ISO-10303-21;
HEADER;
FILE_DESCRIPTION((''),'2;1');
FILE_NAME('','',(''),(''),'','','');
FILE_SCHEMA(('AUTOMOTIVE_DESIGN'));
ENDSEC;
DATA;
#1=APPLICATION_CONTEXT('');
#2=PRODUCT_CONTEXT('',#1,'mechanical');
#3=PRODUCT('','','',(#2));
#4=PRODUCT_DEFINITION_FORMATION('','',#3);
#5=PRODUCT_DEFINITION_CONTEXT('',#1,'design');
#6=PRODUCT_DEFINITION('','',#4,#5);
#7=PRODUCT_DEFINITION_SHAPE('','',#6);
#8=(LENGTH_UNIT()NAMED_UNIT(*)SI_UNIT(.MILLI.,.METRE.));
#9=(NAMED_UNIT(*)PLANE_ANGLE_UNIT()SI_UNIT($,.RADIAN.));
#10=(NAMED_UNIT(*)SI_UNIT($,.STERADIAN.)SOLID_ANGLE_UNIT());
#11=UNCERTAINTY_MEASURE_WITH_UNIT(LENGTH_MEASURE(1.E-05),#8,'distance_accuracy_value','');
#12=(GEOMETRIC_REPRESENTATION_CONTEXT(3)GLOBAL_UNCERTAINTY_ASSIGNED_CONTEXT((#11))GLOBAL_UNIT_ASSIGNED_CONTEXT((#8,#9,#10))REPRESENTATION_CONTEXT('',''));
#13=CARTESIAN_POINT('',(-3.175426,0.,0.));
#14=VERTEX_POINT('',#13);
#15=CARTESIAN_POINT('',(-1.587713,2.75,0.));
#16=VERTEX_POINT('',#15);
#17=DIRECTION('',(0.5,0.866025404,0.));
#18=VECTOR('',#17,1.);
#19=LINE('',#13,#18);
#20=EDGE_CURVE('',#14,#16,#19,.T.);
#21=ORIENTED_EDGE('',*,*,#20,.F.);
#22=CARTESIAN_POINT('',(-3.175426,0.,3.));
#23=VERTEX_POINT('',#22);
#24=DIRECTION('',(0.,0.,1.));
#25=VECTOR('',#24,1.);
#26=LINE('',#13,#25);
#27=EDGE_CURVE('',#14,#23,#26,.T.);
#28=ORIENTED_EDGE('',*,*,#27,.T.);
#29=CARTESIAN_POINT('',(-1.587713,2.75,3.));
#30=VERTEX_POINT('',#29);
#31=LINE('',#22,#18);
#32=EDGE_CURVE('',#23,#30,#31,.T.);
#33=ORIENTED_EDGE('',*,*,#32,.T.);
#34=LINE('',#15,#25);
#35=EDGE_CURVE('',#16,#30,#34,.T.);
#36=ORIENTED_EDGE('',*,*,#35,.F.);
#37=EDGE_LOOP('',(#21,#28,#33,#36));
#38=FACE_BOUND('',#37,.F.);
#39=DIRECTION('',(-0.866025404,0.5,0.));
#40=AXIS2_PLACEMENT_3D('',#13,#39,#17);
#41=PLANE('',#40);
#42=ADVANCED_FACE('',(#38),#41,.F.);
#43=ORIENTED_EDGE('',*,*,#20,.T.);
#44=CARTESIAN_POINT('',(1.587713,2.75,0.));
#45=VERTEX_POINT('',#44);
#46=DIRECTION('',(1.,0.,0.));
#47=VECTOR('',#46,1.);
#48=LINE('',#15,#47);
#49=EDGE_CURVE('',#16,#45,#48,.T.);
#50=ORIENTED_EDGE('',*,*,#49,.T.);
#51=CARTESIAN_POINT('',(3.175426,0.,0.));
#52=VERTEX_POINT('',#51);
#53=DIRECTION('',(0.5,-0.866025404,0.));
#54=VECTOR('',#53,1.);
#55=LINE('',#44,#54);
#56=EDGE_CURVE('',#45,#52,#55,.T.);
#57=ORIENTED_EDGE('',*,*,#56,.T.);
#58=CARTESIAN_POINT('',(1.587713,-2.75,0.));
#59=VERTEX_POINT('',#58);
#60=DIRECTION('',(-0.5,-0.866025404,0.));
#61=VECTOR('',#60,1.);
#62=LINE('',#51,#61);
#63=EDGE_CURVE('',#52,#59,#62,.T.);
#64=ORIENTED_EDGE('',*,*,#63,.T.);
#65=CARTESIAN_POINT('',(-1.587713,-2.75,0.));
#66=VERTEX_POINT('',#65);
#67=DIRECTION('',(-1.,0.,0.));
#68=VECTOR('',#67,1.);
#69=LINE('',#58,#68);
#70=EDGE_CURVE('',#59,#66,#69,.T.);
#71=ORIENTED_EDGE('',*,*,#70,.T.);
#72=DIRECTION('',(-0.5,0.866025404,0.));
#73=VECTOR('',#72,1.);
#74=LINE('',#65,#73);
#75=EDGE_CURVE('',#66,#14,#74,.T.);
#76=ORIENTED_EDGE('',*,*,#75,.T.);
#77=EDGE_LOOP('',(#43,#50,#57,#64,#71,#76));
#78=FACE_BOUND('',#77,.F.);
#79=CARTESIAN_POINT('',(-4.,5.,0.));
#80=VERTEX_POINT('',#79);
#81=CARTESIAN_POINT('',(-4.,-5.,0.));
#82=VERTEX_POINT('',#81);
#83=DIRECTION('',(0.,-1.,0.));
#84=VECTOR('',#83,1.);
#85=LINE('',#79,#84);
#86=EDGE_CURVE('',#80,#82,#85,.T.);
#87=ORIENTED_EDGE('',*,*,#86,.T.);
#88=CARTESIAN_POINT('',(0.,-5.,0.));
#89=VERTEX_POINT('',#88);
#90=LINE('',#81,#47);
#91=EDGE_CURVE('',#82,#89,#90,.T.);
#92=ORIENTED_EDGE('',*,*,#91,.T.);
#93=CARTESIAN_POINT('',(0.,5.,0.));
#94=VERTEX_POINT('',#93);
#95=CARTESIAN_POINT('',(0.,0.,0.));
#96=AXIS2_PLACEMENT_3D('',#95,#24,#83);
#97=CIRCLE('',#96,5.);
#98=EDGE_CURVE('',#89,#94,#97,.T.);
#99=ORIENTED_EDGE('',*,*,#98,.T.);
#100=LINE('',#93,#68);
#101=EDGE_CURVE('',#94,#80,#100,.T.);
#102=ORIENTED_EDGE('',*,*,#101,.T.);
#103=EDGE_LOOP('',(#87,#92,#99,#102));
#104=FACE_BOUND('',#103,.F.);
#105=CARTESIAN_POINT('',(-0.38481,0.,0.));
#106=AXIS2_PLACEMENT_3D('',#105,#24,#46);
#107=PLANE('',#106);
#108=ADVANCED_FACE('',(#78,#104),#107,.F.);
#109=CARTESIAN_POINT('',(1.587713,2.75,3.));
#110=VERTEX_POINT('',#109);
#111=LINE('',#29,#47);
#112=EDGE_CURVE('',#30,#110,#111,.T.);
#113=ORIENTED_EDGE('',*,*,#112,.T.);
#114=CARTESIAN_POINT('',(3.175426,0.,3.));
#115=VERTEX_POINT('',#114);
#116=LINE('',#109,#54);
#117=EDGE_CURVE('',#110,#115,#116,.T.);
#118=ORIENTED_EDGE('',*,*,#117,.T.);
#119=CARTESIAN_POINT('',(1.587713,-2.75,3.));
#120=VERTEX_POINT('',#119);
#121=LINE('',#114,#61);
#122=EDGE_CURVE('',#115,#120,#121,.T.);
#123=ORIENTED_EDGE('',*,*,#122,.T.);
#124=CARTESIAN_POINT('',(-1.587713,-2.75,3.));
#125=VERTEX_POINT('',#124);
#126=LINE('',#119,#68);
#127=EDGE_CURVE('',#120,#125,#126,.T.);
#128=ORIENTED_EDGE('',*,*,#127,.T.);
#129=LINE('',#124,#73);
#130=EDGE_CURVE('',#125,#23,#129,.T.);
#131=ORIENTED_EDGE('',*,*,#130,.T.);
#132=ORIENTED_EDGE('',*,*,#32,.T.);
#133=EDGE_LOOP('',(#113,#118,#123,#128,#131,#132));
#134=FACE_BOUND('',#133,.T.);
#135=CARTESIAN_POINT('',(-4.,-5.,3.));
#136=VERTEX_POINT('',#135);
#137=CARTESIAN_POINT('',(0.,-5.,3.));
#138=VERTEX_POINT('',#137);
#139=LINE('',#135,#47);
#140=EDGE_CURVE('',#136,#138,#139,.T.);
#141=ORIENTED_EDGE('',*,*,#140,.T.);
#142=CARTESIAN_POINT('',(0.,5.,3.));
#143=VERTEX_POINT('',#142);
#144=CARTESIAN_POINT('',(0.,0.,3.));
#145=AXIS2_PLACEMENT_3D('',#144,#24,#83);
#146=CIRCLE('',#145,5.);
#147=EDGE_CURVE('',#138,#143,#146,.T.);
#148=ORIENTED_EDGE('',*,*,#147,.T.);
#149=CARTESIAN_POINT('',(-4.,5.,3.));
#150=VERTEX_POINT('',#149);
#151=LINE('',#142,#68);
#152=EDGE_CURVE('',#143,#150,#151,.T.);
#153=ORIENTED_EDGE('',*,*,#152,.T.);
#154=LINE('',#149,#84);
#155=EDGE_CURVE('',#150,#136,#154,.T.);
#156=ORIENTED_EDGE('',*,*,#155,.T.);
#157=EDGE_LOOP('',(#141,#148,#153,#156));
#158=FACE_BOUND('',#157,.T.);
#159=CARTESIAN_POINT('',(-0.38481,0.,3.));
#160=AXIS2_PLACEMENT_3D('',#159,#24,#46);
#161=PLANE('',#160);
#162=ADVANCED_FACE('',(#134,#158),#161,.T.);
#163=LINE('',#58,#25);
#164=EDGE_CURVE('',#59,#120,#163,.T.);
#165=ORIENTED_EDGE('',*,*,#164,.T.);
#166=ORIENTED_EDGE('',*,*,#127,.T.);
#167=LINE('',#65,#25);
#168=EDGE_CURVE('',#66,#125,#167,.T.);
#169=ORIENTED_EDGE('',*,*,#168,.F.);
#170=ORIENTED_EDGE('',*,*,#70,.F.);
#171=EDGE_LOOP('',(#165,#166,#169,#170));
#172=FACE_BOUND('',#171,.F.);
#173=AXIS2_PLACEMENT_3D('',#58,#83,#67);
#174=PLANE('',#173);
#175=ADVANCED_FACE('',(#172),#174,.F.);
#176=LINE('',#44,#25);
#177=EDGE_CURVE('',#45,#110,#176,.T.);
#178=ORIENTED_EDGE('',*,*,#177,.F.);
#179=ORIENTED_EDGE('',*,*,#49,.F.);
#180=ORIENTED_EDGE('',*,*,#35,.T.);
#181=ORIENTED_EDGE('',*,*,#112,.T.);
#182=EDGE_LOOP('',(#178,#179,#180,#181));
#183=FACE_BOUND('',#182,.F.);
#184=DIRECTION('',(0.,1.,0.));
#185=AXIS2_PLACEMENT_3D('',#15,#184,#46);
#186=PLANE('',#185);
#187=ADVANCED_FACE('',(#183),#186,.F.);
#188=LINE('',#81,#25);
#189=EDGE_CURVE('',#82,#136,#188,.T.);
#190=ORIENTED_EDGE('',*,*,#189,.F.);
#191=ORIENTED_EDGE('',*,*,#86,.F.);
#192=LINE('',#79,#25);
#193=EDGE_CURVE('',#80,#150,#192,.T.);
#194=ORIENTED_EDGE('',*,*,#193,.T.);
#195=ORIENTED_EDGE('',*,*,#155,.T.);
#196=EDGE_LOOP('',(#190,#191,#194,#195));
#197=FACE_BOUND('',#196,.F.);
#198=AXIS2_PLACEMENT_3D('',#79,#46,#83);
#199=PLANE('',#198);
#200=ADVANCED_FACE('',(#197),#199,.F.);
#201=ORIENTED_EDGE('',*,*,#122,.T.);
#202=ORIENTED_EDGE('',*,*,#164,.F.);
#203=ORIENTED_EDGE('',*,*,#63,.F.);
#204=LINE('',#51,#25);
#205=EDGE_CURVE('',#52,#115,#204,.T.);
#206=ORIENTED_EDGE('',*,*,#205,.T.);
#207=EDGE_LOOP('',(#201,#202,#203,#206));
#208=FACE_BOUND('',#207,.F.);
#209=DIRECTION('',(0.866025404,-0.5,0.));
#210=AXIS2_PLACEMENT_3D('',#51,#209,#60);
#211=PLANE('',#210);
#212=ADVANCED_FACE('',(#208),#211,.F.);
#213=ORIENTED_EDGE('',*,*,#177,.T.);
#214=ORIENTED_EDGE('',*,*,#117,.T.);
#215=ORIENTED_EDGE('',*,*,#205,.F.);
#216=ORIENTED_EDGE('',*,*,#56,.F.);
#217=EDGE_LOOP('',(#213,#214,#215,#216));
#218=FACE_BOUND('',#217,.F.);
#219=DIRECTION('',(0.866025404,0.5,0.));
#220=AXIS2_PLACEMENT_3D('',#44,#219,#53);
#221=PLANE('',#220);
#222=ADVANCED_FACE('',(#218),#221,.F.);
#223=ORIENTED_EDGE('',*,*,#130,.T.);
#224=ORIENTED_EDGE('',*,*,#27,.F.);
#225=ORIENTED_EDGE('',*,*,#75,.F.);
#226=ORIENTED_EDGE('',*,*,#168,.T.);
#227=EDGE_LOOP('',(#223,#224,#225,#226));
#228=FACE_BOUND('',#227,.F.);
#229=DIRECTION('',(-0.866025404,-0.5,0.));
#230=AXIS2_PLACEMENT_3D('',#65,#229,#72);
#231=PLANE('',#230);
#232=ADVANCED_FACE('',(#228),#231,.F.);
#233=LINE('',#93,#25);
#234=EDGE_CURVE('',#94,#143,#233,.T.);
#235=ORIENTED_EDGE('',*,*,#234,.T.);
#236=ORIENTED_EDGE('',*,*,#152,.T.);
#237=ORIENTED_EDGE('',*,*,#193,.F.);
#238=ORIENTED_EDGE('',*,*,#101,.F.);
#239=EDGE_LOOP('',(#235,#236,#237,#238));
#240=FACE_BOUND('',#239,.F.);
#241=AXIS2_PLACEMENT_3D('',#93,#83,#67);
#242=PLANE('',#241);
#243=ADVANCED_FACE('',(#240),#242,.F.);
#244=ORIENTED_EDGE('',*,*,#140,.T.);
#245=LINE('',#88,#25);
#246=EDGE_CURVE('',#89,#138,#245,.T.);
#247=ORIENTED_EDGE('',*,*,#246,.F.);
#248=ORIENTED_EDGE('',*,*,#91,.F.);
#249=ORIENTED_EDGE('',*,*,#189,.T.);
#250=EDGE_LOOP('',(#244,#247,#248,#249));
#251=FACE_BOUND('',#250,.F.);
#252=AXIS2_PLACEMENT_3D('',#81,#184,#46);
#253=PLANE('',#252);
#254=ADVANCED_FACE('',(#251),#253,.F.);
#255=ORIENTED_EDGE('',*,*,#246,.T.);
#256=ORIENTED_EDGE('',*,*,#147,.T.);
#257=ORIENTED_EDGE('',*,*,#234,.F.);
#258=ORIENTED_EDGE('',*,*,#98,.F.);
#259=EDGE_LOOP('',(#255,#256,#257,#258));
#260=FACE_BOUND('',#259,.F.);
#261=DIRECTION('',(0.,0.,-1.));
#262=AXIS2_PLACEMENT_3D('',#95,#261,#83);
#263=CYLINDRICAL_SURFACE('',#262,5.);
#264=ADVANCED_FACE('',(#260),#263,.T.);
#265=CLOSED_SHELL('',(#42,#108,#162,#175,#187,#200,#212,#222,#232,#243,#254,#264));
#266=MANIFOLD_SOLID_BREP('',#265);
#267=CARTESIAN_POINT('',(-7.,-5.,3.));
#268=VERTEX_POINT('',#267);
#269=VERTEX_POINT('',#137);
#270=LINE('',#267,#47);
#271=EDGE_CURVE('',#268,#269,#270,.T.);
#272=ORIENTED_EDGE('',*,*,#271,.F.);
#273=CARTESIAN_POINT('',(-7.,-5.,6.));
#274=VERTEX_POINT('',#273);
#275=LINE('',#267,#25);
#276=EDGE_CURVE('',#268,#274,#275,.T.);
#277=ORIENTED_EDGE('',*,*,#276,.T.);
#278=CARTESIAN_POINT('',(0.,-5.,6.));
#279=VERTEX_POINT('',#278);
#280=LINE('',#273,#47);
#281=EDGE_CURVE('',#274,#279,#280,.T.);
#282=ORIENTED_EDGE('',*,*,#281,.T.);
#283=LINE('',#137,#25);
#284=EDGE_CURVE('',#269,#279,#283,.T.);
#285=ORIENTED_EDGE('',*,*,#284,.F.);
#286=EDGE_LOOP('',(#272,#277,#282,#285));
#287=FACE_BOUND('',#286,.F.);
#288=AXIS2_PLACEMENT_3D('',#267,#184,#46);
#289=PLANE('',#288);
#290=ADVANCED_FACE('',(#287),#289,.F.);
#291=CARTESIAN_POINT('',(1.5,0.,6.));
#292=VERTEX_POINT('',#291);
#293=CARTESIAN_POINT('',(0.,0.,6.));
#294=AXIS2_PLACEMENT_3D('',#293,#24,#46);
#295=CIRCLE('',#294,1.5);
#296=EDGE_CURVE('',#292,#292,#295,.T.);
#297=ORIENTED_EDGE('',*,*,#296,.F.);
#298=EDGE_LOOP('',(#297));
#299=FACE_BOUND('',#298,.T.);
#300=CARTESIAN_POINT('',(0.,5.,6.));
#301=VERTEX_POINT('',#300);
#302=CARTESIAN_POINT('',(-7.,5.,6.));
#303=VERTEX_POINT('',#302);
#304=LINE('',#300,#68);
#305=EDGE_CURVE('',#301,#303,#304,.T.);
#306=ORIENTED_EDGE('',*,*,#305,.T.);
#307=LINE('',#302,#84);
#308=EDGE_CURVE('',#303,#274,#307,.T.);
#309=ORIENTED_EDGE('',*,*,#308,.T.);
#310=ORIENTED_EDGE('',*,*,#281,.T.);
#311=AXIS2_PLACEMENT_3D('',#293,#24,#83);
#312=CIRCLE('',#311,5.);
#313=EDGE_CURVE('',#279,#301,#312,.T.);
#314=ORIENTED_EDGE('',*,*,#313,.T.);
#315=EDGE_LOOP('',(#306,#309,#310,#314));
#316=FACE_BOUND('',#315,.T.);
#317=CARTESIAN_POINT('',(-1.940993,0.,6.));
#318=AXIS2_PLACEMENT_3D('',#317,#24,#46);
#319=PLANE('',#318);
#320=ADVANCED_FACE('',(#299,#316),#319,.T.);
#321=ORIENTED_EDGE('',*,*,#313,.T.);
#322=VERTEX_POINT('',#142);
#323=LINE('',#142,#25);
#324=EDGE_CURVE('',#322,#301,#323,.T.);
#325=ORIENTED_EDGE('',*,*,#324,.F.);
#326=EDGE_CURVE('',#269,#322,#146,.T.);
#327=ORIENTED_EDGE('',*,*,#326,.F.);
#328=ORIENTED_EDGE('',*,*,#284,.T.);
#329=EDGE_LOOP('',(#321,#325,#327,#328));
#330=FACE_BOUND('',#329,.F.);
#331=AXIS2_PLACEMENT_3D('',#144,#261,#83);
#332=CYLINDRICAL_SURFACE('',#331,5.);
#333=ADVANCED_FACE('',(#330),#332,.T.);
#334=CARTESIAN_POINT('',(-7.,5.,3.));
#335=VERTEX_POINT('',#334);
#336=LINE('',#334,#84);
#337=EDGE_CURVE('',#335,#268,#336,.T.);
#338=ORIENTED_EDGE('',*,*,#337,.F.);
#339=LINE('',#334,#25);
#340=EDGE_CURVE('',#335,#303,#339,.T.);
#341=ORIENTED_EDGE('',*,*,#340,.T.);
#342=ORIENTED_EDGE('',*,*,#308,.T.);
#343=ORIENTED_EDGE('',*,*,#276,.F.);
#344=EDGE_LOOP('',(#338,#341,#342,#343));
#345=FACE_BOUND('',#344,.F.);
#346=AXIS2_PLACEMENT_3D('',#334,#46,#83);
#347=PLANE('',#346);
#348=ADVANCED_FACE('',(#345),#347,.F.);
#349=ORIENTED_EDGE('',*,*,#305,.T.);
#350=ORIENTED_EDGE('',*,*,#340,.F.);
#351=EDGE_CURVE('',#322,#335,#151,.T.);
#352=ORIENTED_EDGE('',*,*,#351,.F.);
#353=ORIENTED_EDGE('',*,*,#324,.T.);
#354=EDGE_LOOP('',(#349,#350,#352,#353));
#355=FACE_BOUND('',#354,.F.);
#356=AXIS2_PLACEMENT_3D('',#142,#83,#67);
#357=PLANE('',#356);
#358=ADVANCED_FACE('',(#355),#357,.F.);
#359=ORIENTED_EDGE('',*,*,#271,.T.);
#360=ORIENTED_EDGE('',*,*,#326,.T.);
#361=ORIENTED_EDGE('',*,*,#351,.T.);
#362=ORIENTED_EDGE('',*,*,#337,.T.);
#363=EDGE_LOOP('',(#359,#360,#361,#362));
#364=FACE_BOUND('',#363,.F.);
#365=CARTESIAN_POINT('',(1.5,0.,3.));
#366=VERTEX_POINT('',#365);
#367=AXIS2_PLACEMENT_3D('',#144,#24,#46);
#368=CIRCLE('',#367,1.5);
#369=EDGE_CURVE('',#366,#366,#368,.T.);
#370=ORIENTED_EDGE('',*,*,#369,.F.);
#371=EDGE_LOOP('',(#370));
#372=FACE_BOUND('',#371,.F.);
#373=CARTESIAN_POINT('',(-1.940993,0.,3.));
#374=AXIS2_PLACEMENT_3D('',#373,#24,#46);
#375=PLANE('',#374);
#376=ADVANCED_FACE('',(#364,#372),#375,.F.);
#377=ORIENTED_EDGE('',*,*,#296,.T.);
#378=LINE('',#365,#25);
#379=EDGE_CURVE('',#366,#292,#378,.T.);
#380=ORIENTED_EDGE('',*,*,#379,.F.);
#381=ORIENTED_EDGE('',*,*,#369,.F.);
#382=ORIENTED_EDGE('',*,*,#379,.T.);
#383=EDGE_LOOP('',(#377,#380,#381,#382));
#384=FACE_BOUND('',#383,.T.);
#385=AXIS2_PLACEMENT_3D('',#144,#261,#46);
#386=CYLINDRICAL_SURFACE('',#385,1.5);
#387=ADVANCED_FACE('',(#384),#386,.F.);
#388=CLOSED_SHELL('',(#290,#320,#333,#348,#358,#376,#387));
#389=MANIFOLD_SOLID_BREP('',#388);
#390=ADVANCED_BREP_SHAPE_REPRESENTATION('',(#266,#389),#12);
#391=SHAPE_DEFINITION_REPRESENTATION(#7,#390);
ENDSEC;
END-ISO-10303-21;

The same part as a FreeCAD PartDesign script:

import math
import FreeCAD as App
import Part
import Sketcher
Q = App.Units.Quantity


def add_polygon(sketch, points):
    """Adds a closed chain of lines whose ends are joined by coincident constraints."""
    first, n = sketch.GeometryCount, len(points)
    for a, b in zip(points, points[1:] + points[:1]):
        sketch.addGeometry(Part.LineSegment(App.Vector(*a, 0), App.Vector(*b, 0)), False)
    for i in range(n):
        sketch.addConstraint(Sketcher.Constraint("Coincident", first + i, 2, first + (i + 1) % n, 1))

doc = App.newDocument("Part")
params = doc.addObject("Spreadsheet::Sheet", "Params")
for row, (alias, value) in enumerate([
    ("sketch1_radius", "5 mm"),
    ("sketch1_width", "4 mm"),
    ("pad1_length", "3 mm"),
    ("sketch2_diameter", "3 mm"),
    ("sketch2_radius", "5 mm"),
    ("sketch2_width", "7 mm"),
    ("pad2_length", "3 mm"),
], start=1):
    params.set(f"A{row}", alias)
    params.set(f"B{row}", "=" + value)
    params.setAlias(f"B{row}", alias)

body = doc.addObject("PartDesign::Body", "Body")

sketch1 = body.newObject("Sketcher::SketchObject", "Sketch")
sketch1.AttachmentSupport = (doc.getObject("XY_Plane"), [""])
sketch1.MapMode = "FlatFace"
sketch1.addGeometry(Part.ArcOfCircle(Part.Circle(App.Vector(0, 0, 0), App.Vector(0, 0, 1), 5), math.radians(-90), math.radians(90)), False)
sketch1.addGeometry(Part.LineSegment(App.Vector(0, 5, 0), App.Vector(-4, 5, 0)), False)
sketch1.addGeometry(Part.LineSegment(App.Vector(-4, 5, 0), App.Vector(-4, -5, 0)), False)
sketch1.addGeometry(Part.LineSegment(App.Vector(-4, -5, 0), App.Vector(0, -5, 0)), False)
add_polygon(sketch1, [(-1.587713, 2.75), (1.587713, 2.75), (3.175426, 0), (1.587713, -2.75), (-1.587713, -2.75), (-3.175426, 0)])
sketch1.addConstraint(Sketcher.Constraint("Tangent", 0, 2, 1, 1))
sketch1.addConstraint(Sketcher.Constraint("Coincident", 1, 2, 2, 1))
sketch1.addConstraint(Sketcher.Constraint("Coincident", 2, 2, 3, 1))
sketch1.addConstraint(Sketcher.Constraint("Tangent", 3, 2, 0, 1))
sketch1.addConstraint(Sketcher.Constraint("Horizontal", 1))
sketch1.addConstraint(Sketcher.Constraint("Vertical", 2))
sketch1.addConstraint(Sketcher.Constraint("Horizontal", 3))
sketch1.addConstraint(Sketcher.Constraint("Horizontal", 4))
sketch1.addConstraint(Sketcher.Constraint("Horizontal", 7))
sketch1.addConstraint(Sketcher.Constraint("Coincident", 0, 3, -1, 1))
sketch1.addConstraint(Sketcher.Constraint("Symmetric", 4, 2, 7, 2, -1, 1))
sketch1.addConstraint(Sketcher.Constraint("Symmetric", 5, 2, 8, 2, -1, 1))
sketch1.addConstraint(Sketcher.Constraint("PointOnObject", 5, 2, -1))
sketch1.addConstraint(Sketcher.Constraint("Parallel", 6, 9))
sketch1.addConstraint(Sketcher.Constraint("Vertical", 4, 2, 6, 2))
sketch1.addConstraint(Sketcher.Constraint("Radius", 0, 5.0))
sketch1.addConstraint(Sketcher.Constraint("DistanceX", 1, 2, 1, 1, 4.0))
sketch1.addConstraint(Sketcher.Constraint("Angle", 5, Q("-60 deg")))
sketch1.addConstraint(Sketcher.Constraint("DistanceY", 6, 2, 4, 2, 5.5))
sketch1.addConstraint(Sketcher.Constraint("DistanceX", 4, 1, 4, 2, 3.175426))
sketch1.setExpression("Constraints[21]", "Params.sketch1_radius")
sketch1.setExpression("Constraints[22]", "Params.sketch1_width")
pad1 = body.newObject("PartDesign::Pad", "Pad")
pad1.Profile = sketch1
pad1.setExpression("Length", "Params.pad1_length")
body2 = doc.addObject("PartDesign::Body", "Body001")

sketch2 = body2.newObject("Sketcher::SketchObject", "Sketch001")
sketch2.AttachmentSupport = (doc.getObject("XY_Plane001"), [""])
sketch2.MapMode = "FlatFace"
sketch2.AttachmentOffset = App.Placement(App.Vector(0, 0, 3), App.Rotation())
sketch2.addGeometry(Part.ArcOfCircle(Part.Circle(App.Vector(0, 0, 0), App.Vector(0, 0, 1), 5), math.radians(-90), math.radians(90)), False)
sketch2.addGeometry(Part.LineSegment(App.Vector(0, 5, 0), App.Vector(-7, 5, 0)), False)
sketch2.addGeometry(Part.LineSegment(App.Vector(-7, 5, 0), App.Vector(-7, -5, 0)), False)
sketch2.addGeometry(Part.LineSegment(App.Vector(-7, -5, 0), App.Vector(0, -5, 0)), False)
sketch2.addGeometry(Part.Circle(App.Vector(0, 0, 0), App.Vector(0, 0, 1), 1.5), False)
sketch2.addConstraint(Sketcher.Constraint("Tangent", 0, 2, 1, 1))
sketch2.addConstraint(Sketcher.Constraint("Coincident", 1, 2, 2, 1))
sketch2.addConstraint(Sketcher.Constraint("Coincident", 2, 2, 3, 1))
sketch2.addConstraint(Sketcher.Constraint("Tangent", 3, 2, 0, 1))
sketch2.addConstraint(Sketcher.Constraint("Horizontal", 1))
sketch2.addConstraint(Sketcher.Constraint("Vertical", 2))
sketch2.addConstraint(Sketcher.Constraint("Horizontal", 3))
sketch2.addConstraint(Sketcher.Constraint("Coincident", 0, 3, -1, 1))
sketch2.addConstraint(Sketcher.Constraint("Coincident", 4, 3, -1, 1))
sketch2.addConstraint(Sketcher.Constraint("Diameter", 4, 3.0))
sketch2.addConstraint(Sketcher.Constraint("Radius", 0, 5.0))
sketch2.addConstraint(Sketcher.Constraint("DistanceX", 1, 2, 1, 1, 7.0))
sketch2.setExpression("Constraints[9]", "Params.sketch2_diameter")
sketch2.setExpression("Constraints[10]", "Params.sketch2_radius")
sketch2.setExpression("Constraints[11]", "Params.sketch2_width")
pad2 = body2.newObject("PartDesign::Pad", "Pad001")
pad2.Profile = sketch2
pad2.setExpression("Length", "Params.pad2_length")

doc.recompute()
